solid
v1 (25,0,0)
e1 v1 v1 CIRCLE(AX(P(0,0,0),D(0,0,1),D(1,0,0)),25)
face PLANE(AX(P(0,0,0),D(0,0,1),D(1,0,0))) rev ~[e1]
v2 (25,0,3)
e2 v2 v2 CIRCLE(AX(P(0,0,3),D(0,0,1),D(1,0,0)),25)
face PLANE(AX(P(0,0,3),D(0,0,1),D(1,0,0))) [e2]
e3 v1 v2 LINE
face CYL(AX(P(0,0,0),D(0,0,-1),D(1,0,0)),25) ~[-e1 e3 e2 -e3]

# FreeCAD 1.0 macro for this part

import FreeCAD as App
import Part
import Sketcher
Q = App.Units.Quantity

doc = App.newDocument("Part")
body = doc.addObject("PartDesign::Body", "Body")

# Sketch on XY plane
sketch1 = doc.addObject("Sketcher::SketchObject", "Sketch")
body.addObject(sketch1)
sketch1.AttachmentSupport = (doc.XY_Plane, [""])
sketch1.MapMode = "FlatFace"
sketch1.addGeometry(Part.Circle(App.Vector(0, 0, 0), App.Vector(0, 0, 1), 25), False)
sketch1.addConstraint([
    Sketcher.Constraint("Coincident", 0, 3, -1, 1),
    Sketcher.Constraint("Diameter", 0, Q("50 mm")),
])
pad1 = doc.addObject("PartDesign::Pad", "Pad")
body.addObject(pad1)
pad1.Profile = sketch1
pad1.Length = 3

doc.recompute()
